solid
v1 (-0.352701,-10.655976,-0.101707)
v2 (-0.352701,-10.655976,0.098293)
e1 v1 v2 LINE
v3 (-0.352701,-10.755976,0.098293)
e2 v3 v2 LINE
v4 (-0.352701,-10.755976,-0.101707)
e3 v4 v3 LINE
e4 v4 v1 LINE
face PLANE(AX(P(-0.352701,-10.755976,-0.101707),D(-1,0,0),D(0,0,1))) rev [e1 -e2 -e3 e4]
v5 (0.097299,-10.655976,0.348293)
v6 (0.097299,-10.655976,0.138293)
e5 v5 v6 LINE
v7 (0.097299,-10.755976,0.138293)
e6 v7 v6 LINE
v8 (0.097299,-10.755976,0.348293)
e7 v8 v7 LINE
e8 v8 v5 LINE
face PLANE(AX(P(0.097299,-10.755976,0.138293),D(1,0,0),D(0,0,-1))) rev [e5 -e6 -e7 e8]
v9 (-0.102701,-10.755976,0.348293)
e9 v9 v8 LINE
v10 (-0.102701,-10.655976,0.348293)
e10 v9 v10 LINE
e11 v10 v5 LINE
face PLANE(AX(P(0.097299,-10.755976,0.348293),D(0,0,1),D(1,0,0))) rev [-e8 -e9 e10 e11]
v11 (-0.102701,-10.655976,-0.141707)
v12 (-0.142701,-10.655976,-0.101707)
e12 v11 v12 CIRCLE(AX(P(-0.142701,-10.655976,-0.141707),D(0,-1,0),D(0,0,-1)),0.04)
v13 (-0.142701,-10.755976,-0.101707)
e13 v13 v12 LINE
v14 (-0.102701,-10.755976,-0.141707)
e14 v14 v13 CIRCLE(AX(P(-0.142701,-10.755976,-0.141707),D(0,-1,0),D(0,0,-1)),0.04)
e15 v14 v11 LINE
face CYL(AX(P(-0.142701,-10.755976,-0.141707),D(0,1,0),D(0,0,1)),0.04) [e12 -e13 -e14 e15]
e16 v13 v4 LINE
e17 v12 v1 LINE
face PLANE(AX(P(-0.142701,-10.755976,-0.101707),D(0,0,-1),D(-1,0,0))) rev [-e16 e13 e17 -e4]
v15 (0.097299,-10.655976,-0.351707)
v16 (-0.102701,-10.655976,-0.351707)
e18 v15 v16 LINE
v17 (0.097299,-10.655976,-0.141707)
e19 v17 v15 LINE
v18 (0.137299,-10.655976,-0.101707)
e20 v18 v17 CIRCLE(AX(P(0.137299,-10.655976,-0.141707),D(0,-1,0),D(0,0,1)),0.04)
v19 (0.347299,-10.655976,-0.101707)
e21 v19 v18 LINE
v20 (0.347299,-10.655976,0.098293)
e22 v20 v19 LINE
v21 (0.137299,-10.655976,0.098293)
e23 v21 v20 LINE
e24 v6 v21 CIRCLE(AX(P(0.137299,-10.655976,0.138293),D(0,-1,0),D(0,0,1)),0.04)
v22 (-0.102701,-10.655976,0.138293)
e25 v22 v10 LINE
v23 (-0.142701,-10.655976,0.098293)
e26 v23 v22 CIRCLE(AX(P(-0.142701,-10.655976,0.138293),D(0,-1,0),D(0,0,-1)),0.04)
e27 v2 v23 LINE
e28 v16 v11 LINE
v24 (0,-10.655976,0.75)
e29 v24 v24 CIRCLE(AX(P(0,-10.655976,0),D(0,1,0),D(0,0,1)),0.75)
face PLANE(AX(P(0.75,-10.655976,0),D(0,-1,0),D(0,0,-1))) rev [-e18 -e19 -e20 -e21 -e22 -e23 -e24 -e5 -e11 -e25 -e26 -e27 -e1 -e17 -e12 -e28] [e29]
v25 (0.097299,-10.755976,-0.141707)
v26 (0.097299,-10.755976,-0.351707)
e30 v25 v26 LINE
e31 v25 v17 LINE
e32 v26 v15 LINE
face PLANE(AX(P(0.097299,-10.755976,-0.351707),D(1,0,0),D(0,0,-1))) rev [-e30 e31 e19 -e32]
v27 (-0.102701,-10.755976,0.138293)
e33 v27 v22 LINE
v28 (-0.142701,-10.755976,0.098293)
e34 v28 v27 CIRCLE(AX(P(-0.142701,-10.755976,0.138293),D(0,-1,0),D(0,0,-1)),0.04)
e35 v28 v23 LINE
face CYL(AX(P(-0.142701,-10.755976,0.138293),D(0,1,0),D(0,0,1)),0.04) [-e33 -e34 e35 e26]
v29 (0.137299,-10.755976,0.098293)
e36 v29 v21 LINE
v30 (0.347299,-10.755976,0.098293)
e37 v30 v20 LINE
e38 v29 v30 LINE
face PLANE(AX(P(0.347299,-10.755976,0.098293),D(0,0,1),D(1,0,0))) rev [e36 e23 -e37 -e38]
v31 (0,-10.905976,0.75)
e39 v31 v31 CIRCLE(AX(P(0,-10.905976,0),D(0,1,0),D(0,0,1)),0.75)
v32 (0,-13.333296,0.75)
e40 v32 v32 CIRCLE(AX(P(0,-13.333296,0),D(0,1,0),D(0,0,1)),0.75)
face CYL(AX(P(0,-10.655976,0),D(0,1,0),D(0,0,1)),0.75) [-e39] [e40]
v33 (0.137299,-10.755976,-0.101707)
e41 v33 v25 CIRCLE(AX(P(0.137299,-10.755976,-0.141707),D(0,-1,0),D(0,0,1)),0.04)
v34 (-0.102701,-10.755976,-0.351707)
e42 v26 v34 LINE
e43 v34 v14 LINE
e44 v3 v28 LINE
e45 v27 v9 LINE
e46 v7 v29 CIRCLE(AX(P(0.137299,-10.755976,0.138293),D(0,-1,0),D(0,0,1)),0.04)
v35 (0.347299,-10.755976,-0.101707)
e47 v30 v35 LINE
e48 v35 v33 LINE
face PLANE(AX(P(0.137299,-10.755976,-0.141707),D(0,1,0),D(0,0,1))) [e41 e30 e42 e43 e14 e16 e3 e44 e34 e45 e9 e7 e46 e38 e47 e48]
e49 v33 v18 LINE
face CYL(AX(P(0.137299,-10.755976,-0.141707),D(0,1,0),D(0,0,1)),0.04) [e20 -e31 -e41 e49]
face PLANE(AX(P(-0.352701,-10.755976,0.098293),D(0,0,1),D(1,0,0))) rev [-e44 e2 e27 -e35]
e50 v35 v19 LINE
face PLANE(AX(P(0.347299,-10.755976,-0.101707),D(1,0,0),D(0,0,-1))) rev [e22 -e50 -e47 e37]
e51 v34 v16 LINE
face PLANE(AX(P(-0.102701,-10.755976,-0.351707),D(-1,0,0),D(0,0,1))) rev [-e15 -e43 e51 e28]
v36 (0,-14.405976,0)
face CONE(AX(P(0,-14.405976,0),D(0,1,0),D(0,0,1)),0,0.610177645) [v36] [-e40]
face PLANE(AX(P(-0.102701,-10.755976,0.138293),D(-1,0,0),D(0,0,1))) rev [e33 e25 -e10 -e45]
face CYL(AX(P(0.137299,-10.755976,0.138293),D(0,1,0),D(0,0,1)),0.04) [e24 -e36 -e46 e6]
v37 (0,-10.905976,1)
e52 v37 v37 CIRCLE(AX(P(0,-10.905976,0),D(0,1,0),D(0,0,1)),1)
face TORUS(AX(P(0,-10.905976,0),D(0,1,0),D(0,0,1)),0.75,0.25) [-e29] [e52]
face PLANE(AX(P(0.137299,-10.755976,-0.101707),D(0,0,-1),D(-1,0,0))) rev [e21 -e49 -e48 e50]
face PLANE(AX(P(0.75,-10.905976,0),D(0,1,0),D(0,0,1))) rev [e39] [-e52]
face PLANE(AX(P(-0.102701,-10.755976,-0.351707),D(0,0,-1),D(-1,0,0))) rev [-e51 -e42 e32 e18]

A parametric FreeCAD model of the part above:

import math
import FreeCAD as App
import Part
import Sketcher
from FreeCAD import Vector

doc = App.newDocument("Part")
body = doc.addObject("PartDesign::Body", "Body")

sketch1 = doc.addObject("Sketcher::SketchObject", "Sketch")
body.addObject(sketch1)
sketch1.AttachmentSupport = (doc.XY_Plane, [""])
sketch1.MapMode = "FlatFace"
sketch1.addGeometry([
    Part.LineSegment(Vector(0, -10.66, 0), Vector(0, -14.41, 0)),
    Part.LineSegment(Vector(0, -14.41, 0), Vector(0.75, -13.33, 0)),
    Part.LineSegment(Vector(0.75, -13.33, 0), Vector(0.75, -10.91, 0)),
    Part.LineSegment(Vector(0.75, -10.91, 0), Vector(1, -10.91, 0)),
    Part.ArcOfCircle(Part.Circle(Vector(0.75, -10.91, 0), Vector(0, 0, 1), 0.25), math.radians(0), math.radians(90)),
    Part.LineSegment(Vector(0.75, -10.66, 0), Vector(0, -10.66, 0)),
], False)
sketch1.addConstraint([
    Sketcher.Constraint("Coincident", 0, 2, 1, 1),
    Sketcher.Constraint("Coincident", 1, 2, 2, 1),
    Sketcher.Constraint("Coincident", 2, 2, 3, 1),
    Sketcher.Constraint("Coincident", 3, 2, 4, 1),
    Sketcher.Constraint("Tangent", 4, 2, 5, 1),
    Sketcher.Constraint("Coincident", 5, 2, 0, 1),
    Sketcher.Constraint("Vertical", 0),
    Sketcher.Constraint("Vertical", 2),
    Sketcher.Constraint("Horizontal", 3),
    Sketcher.Constraint("Horizontal", 5),
    Sketcher.Constraint("Coincident", 2, 2, 4, 3),
    Sketcher.Constraint("PointOnObject", 0, 2, -2),
    Sketcher.Constraint("Radius", 4, 0.25),
    Sketcher.Constraint("DistanceX", -1, 1, 3, 2, 1.0),
    Sketcher.Constraint("DistanceY", 0, 2, 0, 1, 3.75),
    Sketcher.Constraint("DistanceY", 2, 1, 2, 2, 2.42732),
    Sketcher.Constraint("DistanceY", 4, 3, -1, 1, 10.905976),
])
revolution = doc.addObject("PartDesign::Revolution", "Revolution")
body.addObject(revolution)
revolution.Profile = sketch1
revolution.ReferenceAxis = (sketch1, ["V_Axis"])
revolution.Angle = 360

sketch2 = doc.addObject("Sketcher::SketchObject", "Sketch001")
body.addObject(sketch2)
sketch2.AttachmentSupport = (doc.XZ_Plane, [""])
sketch2.MapMode = "FlatFace"
sketch2.AttachmentOffset = App.Placement(Vector(0, 0, 10.655976), App.Rotation())
sketch2.addGeometry([
    Part.LineSegment(Vector(0.097, -0.352, 0), Vector(-0.103, -0.352, 0)),
    Part.LineSegment(Vector(-0.103, -0.352, 0), Vector(-0.103, -0.142, 0)),
    Part.ArcOfCircle(Part.Circle(Vector(-0.143, -0.142, 0), Vector(0, 0, 1), 0.04), math.radians(0), math.radians(90)),
    Part.LineSegment(Vector(-0.143, -0.102, 0), Vector(-0.353, -0.102, 0)),
    Part.LineSegment(Vector(-0.353, -0.102, 0), Vector(-0.353, 0.098, 0)),
    Part.LineSegment(Vector(-0.353, 0.098, 0), Vector(-0.143, 0.098, 0)),
    Part.ArcOfCircle(Part.Circle(Vector(-0.143, 0.138, 0), Vector(0, 0, 1), 0.04), math.radians(-90), math.radians(0)),
    Part.LineSegment(Vector(-0.103, 0.138, 0), Vector(-0.103, 0.348, 0)),
    Part.LineSegment(Vector(-0.103, 0.348, 0), Vector(0.097, 0.348, 0)),
    Part.LineSegment(Vector(0.097, 0.348, 0), Vector(0.097, 0.138, 0)),
    Part.ArcOfCircle(Part.Circle(Vector(0.137, 0.138, 0), Vector(0, 0, 1), 0.04), math.radians(180), math.radians(270)),
    Part.LineSegment(Vector(0.137, 0.098, 0), Vector(0.347, 0.098, 0)),
    Part.LineSegment(Vector(0.347, 0.098, 0), Vector(0.347, -0.102, 0)),
    Part.LineSegment(Vector(0.347, -0.102, 0), Vector(0.137, -0.102, 0)),
    Part.ArcOfCircle(Part.Circle(Vector(0.137, -0.142, 0), Vector(0, 0, 1), 0.04), math.radians(90), math.radians(180)),
    Part.LineSegment(Vector(0.097, -0.142, 0), Vector(0.097, -0.352, 0)),
], False)
sketch2.addConstraint([
    Sketcher.Constraint("Coincident", 0, 2, 1, 1),
    Sketcher.Constraint("Tangent", 1, 2, 2, 1),
    Sketcher.Constraint("Tangent", 2, 2, 3, 1),
    Sketcher.Constraint("Coincident", 3, 2, 4, 1),
    Sketcher.Constraint("Coincident", 4, 2, 5, 1),
    Sketcher.Constraint("Tangent", 5, 2, 6, 1),
    Sketcher.Constraint("Tangent", 6, 2, 7, 1),
    Sketcher.Constraint("Coincident", 7, 2, 8, 1),
    Sketcher.Constraint("Coincident", 8, 2, 9, 1),
    Sketcher.Constraint("Tangent", 9, 2, 10, 1),
    Sketcher.Constraint("Tangent", 10, 2, 11, 1),
    Sketcher.Constraint("Coincident", 11, 2, 12, 1),
    Sketcher.Constraint("Coincident", 12, 2, 13, 1),
    Sketcher.Constraint("Tangent", 13, 2, 14, 1),
    Sketcher.Constraint("Tangent", 14, 2, 15, 1),
    Sketcher.Constraint("Coincident", 15, 2, 0, 1),
    Sketcher.Constraint("Horizontal", 0),
    Sketcher.Constraint("Vertical", 1),
    Sketcher.Constraint("Horizontal", 3),
    Sketcher.Constraint("Vertical", 4),
    Sketcher.Constraint("Horizontal", 5),
    Sketcher.Constraint("Vertical", 7),
    Sketcher.Constraint("Horizontal", 8),
    Sketcher.Constraint("Vertical", 9),
    Sketcher.Constraint("Horizontal", 11),
    Sketcher.Constraint("Vertical", 12),
    Sketcher.Constraint("Horizontal", 13),
    Sketcher.Constraint("Vertical", 15),
    Sketcher.Constraint("Equal", 2, 6),
    Sketcher.Constraint("Equal", 6, 10),
    Sketcher.Constraint("Equal", 10, 14),
    Sketcher.Constraint("Horizontal", 6, 3, 10, 3),
    Sketcher.Constraint("Horizontal", 2, 3, 14, 3),
    Sketcher.Constraint("Vertical", 2, 3, 6, 3),
    Sketcher.Constraint("Vertical", 10, 3, 14, 3),
    Sketcher.Constraint("Equal", 5, 11),
    Sketcher.Constraint("Equal", 13, 1),
    Sketcher.Constraint("Equal", 8, 4),
    Sketcher.Constraint("Equal", 1, 7),
    Sketcher.Constraint("Radius", 2, 0.04),
    Sketcher.Constraint("DistanceX", 0, 2, 0, 1, 0.2),
    Sketcher.Constraint("DistanceX", 3, 2, 3, 1, 0.21),
    Sketcher.Constraint("DistanceX", 2, 3, -1, 1, 0.142701),
    Sketcher.Constraint("DistanceY", 2, 3, -1, 1, 0.141707),
])
pocket1 = doc.addObject("PartDesign::Pocket", "Pocket")
body.addObject(pocket1)
pocket1.Profile = sketch2
pocket1.Length = 0.1
pocket1.Reversed = True

doc.recompute()
